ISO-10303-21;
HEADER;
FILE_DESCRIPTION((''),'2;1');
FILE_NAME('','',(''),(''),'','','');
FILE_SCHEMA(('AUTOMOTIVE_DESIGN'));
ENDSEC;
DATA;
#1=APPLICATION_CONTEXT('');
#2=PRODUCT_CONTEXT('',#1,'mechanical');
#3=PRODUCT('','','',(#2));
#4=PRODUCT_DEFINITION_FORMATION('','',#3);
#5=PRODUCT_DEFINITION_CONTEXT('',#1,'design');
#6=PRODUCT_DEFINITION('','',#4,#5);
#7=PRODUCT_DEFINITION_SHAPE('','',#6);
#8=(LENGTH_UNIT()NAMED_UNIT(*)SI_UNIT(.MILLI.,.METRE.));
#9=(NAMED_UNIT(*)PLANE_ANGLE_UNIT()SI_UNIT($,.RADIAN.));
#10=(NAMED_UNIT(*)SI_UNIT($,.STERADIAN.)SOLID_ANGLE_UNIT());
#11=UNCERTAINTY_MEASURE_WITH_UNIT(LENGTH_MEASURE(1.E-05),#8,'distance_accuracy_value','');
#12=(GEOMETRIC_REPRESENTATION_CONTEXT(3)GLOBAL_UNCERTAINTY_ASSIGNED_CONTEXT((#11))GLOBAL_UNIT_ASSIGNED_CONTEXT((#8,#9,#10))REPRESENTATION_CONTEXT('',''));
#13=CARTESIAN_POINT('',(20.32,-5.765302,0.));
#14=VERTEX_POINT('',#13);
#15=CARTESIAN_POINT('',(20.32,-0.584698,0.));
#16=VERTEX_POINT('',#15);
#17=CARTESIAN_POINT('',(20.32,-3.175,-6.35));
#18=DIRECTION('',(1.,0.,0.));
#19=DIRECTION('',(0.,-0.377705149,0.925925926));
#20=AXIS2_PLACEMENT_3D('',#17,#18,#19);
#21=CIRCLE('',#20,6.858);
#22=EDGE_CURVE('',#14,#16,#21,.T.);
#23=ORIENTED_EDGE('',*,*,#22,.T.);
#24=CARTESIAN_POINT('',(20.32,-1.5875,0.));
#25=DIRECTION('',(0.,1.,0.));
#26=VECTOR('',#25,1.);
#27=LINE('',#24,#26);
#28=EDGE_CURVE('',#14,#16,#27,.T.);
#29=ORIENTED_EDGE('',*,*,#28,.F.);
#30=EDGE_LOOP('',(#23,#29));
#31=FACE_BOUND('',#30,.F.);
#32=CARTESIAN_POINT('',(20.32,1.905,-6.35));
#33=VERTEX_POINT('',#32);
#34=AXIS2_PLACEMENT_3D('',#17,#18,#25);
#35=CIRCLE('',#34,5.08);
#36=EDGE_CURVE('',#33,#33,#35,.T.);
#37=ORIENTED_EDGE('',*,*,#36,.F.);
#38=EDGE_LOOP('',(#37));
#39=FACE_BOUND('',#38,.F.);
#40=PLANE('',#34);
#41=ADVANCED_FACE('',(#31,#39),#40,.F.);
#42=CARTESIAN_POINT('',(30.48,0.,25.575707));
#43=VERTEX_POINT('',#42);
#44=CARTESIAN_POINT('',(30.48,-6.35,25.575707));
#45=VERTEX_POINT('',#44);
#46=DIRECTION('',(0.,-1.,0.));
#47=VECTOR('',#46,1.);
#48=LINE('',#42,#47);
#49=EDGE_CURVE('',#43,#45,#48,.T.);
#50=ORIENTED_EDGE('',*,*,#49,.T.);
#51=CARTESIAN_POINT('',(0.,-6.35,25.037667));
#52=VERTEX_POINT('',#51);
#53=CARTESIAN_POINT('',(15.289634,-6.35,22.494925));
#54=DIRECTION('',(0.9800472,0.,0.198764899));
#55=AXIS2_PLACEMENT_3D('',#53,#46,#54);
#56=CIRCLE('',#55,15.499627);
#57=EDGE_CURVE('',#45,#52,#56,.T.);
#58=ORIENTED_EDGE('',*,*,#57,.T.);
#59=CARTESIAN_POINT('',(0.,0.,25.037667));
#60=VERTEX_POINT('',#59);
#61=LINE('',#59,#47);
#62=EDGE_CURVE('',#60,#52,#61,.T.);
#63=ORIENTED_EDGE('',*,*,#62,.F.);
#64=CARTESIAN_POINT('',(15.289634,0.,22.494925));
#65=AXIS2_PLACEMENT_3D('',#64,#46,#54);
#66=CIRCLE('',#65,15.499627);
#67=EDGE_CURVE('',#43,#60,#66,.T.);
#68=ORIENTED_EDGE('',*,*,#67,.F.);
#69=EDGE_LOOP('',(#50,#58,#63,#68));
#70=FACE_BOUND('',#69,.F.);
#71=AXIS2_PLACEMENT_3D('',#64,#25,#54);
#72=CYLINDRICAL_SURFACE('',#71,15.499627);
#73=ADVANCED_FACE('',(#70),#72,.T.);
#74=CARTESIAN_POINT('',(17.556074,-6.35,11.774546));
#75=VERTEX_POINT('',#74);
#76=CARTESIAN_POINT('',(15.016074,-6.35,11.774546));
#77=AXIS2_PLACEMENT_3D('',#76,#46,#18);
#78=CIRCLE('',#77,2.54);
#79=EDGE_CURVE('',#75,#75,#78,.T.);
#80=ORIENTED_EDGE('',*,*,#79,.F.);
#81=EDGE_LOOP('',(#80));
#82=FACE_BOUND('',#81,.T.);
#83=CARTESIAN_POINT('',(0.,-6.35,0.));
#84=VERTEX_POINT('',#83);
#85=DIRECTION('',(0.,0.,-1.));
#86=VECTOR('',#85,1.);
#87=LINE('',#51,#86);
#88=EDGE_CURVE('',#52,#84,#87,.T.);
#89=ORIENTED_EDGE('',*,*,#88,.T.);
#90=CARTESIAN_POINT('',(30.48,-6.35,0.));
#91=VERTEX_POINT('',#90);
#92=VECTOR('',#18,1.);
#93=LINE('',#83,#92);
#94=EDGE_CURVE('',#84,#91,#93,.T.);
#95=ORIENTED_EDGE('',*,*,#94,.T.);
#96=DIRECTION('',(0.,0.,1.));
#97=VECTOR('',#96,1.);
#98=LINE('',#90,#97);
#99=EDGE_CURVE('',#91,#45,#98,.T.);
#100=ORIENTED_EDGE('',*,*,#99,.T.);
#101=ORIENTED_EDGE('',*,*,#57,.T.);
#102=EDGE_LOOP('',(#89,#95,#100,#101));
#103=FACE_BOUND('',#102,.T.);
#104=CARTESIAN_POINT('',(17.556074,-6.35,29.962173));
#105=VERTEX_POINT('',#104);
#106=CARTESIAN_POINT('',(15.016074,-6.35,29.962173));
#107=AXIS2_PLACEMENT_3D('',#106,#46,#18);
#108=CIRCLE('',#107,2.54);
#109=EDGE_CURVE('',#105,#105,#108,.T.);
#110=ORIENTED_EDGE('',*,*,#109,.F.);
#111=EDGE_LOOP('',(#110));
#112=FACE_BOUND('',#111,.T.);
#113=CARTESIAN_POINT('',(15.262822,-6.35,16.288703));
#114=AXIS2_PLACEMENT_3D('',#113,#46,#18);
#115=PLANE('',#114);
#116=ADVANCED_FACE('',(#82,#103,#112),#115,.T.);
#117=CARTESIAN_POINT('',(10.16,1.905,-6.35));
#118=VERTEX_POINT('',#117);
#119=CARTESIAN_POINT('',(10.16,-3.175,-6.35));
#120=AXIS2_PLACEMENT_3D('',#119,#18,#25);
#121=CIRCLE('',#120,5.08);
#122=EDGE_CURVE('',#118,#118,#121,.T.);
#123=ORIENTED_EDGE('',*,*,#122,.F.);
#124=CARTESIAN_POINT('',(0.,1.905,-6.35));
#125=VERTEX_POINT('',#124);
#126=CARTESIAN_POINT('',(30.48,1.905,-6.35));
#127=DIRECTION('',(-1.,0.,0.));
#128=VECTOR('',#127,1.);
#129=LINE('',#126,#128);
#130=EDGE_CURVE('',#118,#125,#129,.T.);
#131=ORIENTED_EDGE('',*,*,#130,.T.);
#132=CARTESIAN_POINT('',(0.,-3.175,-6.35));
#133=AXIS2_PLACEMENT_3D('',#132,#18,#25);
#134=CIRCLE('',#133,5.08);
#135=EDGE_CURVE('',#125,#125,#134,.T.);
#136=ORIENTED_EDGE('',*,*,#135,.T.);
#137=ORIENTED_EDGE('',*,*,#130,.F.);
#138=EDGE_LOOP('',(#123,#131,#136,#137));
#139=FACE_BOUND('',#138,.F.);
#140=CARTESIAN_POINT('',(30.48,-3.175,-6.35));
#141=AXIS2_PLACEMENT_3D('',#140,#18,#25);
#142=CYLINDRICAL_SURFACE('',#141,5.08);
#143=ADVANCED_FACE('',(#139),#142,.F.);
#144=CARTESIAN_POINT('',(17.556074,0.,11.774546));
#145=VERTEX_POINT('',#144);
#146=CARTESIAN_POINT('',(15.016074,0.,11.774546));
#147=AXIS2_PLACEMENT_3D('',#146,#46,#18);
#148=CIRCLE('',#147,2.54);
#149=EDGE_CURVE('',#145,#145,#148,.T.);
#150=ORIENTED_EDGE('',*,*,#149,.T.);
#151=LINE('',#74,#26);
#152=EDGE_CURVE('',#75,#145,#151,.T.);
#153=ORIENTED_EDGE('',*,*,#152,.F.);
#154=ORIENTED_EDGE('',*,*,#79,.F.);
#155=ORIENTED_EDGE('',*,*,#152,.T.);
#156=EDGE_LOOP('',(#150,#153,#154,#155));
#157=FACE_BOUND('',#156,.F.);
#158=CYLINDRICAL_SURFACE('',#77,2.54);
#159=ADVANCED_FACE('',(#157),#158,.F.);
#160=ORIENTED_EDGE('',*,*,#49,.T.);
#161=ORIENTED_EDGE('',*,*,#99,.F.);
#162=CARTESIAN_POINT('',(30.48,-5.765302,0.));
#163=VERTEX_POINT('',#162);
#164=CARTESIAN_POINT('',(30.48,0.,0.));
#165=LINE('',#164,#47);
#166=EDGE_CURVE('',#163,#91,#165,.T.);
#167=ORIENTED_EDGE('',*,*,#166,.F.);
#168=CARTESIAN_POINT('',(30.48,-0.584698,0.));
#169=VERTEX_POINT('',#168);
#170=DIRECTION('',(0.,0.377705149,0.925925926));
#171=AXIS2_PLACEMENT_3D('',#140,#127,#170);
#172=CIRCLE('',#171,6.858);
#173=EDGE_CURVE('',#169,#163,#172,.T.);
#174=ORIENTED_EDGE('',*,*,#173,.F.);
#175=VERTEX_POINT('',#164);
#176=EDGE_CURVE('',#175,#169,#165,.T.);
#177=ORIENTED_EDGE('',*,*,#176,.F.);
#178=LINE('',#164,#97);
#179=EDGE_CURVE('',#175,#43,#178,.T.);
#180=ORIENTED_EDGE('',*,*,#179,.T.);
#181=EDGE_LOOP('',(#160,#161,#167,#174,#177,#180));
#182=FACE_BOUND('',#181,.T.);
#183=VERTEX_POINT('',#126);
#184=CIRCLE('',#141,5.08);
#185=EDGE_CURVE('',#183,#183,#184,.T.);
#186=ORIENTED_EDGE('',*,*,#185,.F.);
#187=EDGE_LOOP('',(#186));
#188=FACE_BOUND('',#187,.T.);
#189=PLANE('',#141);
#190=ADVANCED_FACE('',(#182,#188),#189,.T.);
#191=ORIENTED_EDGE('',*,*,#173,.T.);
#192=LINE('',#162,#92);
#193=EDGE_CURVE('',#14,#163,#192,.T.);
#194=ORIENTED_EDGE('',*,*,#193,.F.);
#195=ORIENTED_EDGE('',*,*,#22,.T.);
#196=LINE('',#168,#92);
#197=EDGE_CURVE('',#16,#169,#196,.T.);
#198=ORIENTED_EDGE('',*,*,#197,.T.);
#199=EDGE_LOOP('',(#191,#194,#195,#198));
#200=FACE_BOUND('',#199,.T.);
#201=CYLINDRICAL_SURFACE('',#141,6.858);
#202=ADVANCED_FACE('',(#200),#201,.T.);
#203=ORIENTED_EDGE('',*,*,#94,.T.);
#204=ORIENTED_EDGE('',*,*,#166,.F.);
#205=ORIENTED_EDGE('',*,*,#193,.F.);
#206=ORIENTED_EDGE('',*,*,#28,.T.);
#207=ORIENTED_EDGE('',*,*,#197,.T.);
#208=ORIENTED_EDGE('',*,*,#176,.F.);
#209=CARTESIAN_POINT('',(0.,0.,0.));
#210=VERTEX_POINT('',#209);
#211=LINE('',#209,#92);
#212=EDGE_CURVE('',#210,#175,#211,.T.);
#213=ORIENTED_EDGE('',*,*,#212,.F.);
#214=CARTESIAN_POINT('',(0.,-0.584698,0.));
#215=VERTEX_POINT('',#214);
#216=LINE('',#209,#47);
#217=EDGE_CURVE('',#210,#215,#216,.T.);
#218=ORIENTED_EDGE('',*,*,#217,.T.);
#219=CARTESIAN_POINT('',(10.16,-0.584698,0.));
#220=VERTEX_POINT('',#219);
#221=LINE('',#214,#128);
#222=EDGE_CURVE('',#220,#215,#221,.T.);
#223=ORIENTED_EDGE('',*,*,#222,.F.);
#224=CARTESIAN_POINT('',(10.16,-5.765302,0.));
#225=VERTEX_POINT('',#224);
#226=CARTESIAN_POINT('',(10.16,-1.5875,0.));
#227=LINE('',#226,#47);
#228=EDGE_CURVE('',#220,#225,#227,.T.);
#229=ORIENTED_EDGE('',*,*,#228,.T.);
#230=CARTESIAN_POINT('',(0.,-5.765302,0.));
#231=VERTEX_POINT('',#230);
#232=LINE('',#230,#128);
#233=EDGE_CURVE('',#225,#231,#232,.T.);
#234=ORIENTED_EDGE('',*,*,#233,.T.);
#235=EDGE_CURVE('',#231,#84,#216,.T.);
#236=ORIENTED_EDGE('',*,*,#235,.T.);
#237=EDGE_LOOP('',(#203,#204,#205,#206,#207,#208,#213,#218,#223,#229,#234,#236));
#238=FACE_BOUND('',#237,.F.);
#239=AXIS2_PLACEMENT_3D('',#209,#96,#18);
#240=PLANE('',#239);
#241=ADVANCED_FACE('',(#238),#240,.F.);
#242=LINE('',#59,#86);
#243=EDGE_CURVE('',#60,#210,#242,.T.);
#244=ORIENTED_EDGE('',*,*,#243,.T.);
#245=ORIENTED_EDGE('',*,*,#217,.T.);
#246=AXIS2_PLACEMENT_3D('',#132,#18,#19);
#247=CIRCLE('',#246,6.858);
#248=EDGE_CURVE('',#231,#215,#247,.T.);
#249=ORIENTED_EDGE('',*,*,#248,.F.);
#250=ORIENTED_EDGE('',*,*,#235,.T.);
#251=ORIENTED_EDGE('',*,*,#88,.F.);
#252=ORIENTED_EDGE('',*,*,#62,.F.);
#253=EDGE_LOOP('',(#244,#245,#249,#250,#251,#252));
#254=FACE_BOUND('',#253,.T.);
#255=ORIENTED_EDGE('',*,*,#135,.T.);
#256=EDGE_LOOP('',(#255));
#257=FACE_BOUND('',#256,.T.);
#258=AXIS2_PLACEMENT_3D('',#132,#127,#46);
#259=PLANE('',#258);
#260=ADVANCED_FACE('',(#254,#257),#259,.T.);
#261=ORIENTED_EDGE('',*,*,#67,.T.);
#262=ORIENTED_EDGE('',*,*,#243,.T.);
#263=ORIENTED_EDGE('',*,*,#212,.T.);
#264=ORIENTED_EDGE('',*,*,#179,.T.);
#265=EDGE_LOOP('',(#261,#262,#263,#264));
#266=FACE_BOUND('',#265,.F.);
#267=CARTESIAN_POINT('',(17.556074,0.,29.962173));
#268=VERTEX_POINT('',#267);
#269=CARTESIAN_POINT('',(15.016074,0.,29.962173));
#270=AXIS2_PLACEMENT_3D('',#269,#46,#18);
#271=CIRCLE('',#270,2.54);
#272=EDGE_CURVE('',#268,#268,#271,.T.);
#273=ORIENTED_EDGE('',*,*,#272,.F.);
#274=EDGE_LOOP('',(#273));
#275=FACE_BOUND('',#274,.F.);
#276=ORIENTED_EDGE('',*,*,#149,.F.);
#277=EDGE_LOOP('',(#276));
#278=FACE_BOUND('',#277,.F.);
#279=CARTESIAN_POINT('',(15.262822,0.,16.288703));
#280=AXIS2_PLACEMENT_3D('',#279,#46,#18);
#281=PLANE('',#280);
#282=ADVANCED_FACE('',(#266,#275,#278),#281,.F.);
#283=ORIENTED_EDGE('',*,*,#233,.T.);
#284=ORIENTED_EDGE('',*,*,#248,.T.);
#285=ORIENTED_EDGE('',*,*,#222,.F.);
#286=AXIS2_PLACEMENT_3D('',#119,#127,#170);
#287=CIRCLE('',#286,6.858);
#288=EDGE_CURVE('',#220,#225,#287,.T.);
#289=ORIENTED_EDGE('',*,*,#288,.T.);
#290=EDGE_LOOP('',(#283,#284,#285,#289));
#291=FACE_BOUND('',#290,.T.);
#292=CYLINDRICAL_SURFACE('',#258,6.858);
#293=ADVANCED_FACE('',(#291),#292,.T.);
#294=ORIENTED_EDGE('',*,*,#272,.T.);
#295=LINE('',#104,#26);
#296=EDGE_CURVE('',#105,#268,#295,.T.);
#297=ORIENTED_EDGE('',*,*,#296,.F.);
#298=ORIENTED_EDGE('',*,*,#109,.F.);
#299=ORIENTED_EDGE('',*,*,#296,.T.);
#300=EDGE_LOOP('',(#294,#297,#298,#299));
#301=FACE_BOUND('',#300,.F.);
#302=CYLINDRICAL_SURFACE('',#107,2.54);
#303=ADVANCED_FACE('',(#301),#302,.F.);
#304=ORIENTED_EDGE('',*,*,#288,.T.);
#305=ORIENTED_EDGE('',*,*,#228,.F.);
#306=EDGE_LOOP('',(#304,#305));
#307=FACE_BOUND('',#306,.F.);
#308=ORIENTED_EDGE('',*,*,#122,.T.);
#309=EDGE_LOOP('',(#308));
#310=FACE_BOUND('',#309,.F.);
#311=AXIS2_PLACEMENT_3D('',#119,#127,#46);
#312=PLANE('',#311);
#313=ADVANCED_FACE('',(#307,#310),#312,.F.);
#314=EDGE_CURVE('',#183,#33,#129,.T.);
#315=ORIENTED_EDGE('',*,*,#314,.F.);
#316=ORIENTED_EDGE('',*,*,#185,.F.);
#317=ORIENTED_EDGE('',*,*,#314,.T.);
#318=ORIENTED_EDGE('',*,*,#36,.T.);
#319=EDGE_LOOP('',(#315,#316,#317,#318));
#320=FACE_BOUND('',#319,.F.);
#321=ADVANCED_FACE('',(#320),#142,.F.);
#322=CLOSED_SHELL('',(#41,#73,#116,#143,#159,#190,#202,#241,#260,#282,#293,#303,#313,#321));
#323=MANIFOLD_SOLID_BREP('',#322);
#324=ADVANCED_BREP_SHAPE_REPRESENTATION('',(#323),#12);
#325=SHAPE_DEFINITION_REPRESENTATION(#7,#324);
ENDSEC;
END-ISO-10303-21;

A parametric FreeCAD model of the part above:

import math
import FreeCAD as App
import Part
import Sketcher

V = App.Vector
Q = App.Units.Quantity

doc = App.newDocument("Part")
body = doc.addObject("PartDesign::Body", "Body")

# Sketch on XZ plane
sketch1 = body.newObject("Sketcher::SketchObject", "Sketch")
sketch1.AttachmentSupport = (doc.getObject("XZ_Plane"), [""])
sketch1.MapMode = "FlatFace"
sketch1.addGeometry([
    Part.LineSegment(V(0, 25, 0), V(0, 0, 0)),
    Part.LineSegment(V(0, 0, 0), V(30, 0, 0)),
    Part.LineSegment(V(30, 0, 0), V(30, 26, 0)),
    Part.ArcOfCircle(Part.Circle(V(15, 22, 0), V(0, 0, 1), 15), math.radians(11), math.radians(171)),
], False)
sketch1.addConstraint([
    Sketcher.Constraint("Coincident", 0, 2, 1, 1),
    Sketcher.Constraint("Coincident", 1, 2, 2, 1),
    Sketcher.Constraint("Coincident", 2, 2, 3, 1),
    Sketcher.Constraint("Coincident", 3, 2, 0, 1),
    Sketcher.Constraint("Vertical", 0),
    Sketcher.Constraint("Horizontal", 1),
    Sketcher.Constraint("Vertical", 2),
    Sketcher.Constraint("Coincident", 0, 2, -1, 1),
    Sketcher.Constraint("DistanceX", 1, 1, 1, 2, Q("1.2 in")),
    Sketcher.Constraint("Radius", 3, Q("15.499627 mm")),
    Sketcher.Constraint("DistanceY", 0, 2, 0, 1, Q("25.037667 mm")),
    Sketcher.Constraint("DistanceY", 2, 1, 2, 2, Q("25.575707 mm")),
])
pad1 = body.newObject("PartDesign::Pad", "Pad")
pad1.Profile = sketch1
pad1.Length = Q("0.25 in")

# Sketch on YZ plane
sketch2 = body.newObject("Sketcher::SketchObject", "Sketch001")
sketch2.AttachmentSupport = (doc.getObject("YZ_Plane"), [""])
sketch2.MapMode = "FlatFace"
sketch2.AttachmentOffset = App.Placement(V(0, 0, 1.2 * 25.4), App.Rotation())
sketch2.addGeometry(Part.Circle(V(-3, -6, 0), V(0, 0, 1), 7), False)
sketch2.addConstraint([
    Sketcher.Constraint("Diameter", 0, Q("0.54 in")),
    Sketcher.Constraint("DistanceY", 0, 3, -1, 1, Q("0.25 in")),
    Sketcher.Constraint("DistanceX", 0, 3, -1, 1, Q("0.125 in")),
])
pad2 = body.newObject("PartDesign::Pad", "Pad001")
pad2.Profile = sketch2
pad2.Length = Q("0.4 in")
pad2.Reversed = True

# Sketch on YZ plane
sketch3 = body.newObject("Sketcher::SketchObject", "Sketch002")
sketch3.AttachmentSupport = (doc.getObject("YZ_Plane"), [""])
sketch3.MapMode = "FlatFace"
sketch3.addGeometry(Part.Circle(V(-3, -6, 0), V(0, 0, 1), 7), False)
sketch3.addConstraint([
    Sketcher.Constraint("Diameter", 0, Q("0.54 in")),
    Sketcher.Constraint("DistanceY", 0, 3, -1, 1, Q("0.25 in")),
    Sketcher.Constraint("DistanceX", 0, 3, -1, 1, Q("0.125 in")),
])
pad3 = body.newObject("PartDesign::Pad", "Pad002")
pad3.Profile = sketch3
pad3.Length = Q("0.4 in")

# Sketch on YZ plane
sketch4 = body.newObject("Sketcher::SketchObject", "Sketch003")
sketch4.AttachmentSupport = (doc.getObject("YZ_Plane"), [""])
sketch4.MapMode = "FlatFace"
sketch4.AttachmentOffset = App.Placement(V(0, 0, 1.2 * 25.4), App.Rotation())
sketch4.addGeometry(Part.Circle(V(-3, -6, 0), V(0, 0, 1), 5), False)
sketch4.addConstraint([
    Sketcher.Constraint("Diameter", 0, Q("0.4 in")),
    Sketcher.Constraint("DistanceY", 0, 3, -1, 1, Q("0.25 in")),
    Sketcher.Constraint("DistanceX", 0, 3, -1, 1, Q("0.125 in")),
])
pocket1 = body.newObject("PartDesign::Pocket", "Pocket")
pocket1.Profile = sketch4
pocket1.Type = "ThroughAll"

# Sketch on XZ plane
sketch5 = body.newObject("Sketcher::SketchObject", "Sketch004")
sketch5.AttachmentSupport = (doc.getObject("XZ_Plane"), [""])
sketch5.MapMode = "FlatFace"
sketch5.AttachmentOffset = App.Placement(V(0, 0, 0.25 * 25.4), App.Rotation())
sketch5.addGeometry([
    Part.Circle(V(15, 30, 0), V(0, 0, 1), 2.5),
    Part.Circle(V(15, 11.8, 0), V(0, 0, 1), 2.5),
], False)
sketch5.addConstraint([
    Sketcher.Constraint("Equal", 0, 1),
    Sketcher.Constraint("Vertical", 0, 3, 1, 3),
    Sketcher.Constraint("Diameter", 0, Q("0.2 in")),
    Sketcher.Constraint("DistanceX", -1, 1, 0, 3, Q("15.016074 mm")),
    Sketcher.Constraint("DistanceY", -1, 1, 0, 3, Q("29.962173 mm")),
    Sketcher.Constraint("DistanceY", -1, 1, 1, 3, Q("11.774546 mm")),
])
pocket2 = body.newObject("PartDesign::Pocket", "Pocket001")
pocket2.Profile = sketch5
pocket2.Length = Q("1 in")

doc.recompute()
